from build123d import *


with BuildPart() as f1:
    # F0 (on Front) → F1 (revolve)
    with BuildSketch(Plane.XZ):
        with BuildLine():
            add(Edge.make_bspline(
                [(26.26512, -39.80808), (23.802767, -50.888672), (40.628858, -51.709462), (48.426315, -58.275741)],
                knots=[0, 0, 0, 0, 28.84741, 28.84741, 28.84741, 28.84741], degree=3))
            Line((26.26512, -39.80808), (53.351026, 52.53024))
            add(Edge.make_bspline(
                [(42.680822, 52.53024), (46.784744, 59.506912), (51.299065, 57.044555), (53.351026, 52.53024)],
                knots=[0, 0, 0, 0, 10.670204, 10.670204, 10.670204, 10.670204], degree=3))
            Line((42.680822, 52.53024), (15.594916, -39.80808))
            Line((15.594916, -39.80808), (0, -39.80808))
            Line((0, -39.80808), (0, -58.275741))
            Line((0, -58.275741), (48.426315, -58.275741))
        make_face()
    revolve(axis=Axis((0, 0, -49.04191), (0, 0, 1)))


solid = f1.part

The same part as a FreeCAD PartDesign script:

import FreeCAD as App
import Part
import Sketcher

V = App.Vector

doc = App.newDocument("Part")
body = doc.addObject("PartDesign::Body", "Body")

# Sketch on XZ plane
sketch1 = body.newObject("Sketcher::SketchObject", "Sketch")
sketch1.AttachmentSupport = (doc.getObject("XZ_Plane"), [""])
sketch1.MapMode = "FlatFace"
sketch1.addGeometry([
    Part.BSplineCurve([V(26.26512, -39.80808, 0), V(23.802767, -50.888672, 0), V(40.628858, -51.709462, 0), V(48.426315, -58.275741, 0)], [4, 4], [0, 28.84741], False, 3, [1, 1, 1, 1], False),  # 0
    Part.LineSegment(V(26.26512, -39.80808, 0), V(53.351026, 52.53024, 0)),  # 1
    Part.BSplineCurve([V(42.680822, 52.53024, 0), V(46.784744, 59.506912, 0), V(51.299065, 57.044555, 0), V(53.351026, 52.53024, 0)], [4, 4], [0, 10.670204], False, 3, [1, 1, 1, 1], False),  # 2
    Part.LineSegment(V(42.680822, 52.53024, 0), V(15.594916, -39.80808, 0)),  # 3
    Part.LineSegment(V(15.594916, -39.80808, 0), V(0, -39.80808, 0)),  # 4
    Part.LineSegment(V(0, -39.80808, 0), V(0, -58.275741, 0)),  # 5
    Part.LineSegment(V(0, -58.275741, 0), V(48.426315, -58.275741, 0)),  # 6
], False)
sketch1.addConstraint([
    Sketcher.Constraint("Block", 0),
    Sketcher.Constraint("Block", 2),
    Sketcher.Constraint("Coincident", 0, 1, 1, 1),
    Sketcher.Constraint("Coincident", 1, 2, 2, 2),
    Sketcher.Constraint("Coincident", 2, 1, 3, 1),
    Sketcher.Constraint("Coincident", 3, 2, 4, 1),
    Sketcher.Constraint("Coincident", 4, 2, 5, 1),
    Sketcher.Constraint("Coincident", 5, 2, 6, 1),
    Sketcher.Constraint("Coincident", 6, 2, 0, 2),
    Sketcher.Constraint("Horizontal", 4),
    Sketcher.Constraint("Vertical", 5),
    Sketcher.Constraint("Horizontal", 6),
    Sketcher.Constraint("PointOnObject", 4, 2, -2),
    Sketcher.Constraint("Parallel", 1, 3),
    Sketcher.Constraint("Equal", 1, 3),
])
revolution = body.newObject("PartDesign::Revolution", "Revolution")
revolution.Profile = sketch1
revolution.ReferenceAxis = (sketch1, ["V_Axis"])
revolution.Angle = 360

doc.recompute()
